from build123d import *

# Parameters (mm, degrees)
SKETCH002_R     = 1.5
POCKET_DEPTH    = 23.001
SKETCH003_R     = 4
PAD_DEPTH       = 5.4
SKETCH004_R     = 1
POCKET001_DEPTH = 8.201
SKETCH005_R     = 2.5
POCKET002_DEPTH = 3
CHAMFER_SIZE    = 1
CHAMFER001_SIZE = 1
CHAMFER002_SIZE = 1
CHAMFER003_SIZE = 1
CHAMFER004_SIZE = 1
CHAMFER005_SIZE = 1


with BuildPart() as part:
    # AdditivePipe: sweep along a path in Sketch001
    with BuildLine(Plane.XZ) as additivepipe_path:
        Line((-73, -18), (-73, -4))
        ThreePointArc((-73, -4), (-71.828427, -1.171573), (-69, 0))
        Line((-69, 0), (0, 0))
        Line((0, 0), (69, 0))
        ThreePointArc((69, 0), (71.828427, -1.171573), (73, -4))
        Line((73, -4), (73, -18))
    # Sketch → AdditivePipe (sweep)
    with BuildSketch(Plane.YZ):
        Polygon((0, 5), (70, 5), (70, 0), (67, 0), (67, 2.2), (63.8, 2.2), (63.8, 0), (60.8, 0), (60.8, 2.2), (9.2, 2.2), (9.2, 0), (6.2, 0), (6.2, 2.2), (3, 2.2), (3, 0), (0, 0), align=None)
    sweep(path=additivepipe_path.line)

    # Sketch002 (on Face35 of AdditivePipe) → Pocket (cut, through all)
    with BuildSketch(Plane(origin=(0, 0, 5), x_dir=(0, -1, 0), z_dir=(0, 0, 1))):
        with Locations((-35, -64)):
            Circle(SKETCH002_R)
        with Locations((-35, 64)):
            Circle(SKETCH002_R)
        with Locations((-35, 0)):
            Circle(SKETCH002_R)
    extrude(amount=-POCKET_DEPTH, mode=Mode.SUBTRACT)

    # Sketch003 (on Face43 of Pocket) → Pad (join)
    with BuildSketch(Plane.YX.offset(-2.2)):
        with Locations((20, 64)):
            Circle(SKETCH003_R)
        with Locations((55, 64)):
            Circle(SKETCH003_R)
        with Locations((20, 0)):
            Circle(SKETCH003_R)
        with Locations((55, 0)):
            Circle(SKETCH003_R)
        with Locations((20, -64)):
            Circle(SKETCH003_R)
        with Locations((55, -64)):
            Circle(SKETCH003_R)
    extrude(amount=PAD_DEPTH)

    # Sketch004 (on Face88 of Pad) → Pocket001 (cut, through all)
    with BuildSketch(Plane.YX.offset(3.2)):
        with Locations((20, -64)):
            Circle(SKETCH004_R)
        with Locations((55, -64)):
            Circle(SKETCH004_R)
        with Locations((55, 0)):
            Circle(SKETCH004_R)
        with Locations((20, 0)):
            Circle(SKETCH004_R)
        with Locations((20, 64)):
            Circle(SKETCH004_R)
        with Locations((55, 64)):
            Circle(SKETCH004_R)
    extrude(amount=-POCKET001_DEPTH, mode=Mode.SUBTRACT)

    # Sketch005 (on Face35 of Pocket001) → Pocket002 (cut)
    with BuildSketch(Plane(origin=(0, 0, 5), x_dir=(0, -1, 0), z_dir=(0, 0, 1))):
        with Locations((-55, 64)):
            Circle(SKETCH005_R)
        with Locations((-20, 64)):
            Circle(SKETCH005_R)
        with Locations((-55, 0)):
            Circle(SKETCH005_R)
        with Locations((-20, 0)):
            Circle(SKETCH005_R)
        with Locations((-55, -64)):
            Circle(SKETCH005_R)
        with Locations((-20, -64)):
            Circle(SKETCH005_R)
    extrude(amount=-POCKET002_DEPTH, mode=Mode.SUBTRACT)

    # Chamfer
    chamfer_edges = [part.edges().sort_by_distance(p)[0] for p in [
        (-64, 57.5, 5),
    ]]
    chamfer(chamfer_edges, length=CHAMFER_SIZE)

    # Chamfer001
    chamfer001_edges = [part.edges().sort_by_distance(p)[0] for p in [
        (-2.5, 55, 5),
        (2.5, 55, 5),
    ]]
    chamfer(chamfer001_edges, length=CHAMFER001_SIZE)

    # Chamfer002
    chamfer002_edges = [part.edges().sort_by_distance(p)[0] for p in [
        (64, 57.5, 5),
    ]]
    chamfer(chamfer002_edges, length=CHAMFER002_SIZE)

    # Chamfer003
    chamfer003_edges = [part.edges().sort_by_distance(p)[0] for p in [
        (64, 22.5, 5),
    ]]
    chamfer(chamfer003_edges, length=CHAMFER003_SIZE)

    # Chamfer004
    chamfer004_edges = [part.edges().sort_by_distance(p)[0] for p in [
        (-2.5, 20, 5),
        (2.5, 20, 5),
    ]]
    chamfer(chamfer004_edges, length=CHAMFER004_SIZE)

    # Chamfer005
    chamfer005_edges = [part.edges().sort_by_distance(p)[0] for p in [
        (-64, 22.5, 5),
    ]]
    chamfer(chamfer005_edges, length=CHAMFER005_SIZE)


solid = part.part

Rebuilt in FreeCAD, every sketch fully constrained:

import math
import FreeCAD as App
import Part
import Sketcher

V = App.Vector


def edges_at(feature, points):
    """Names of the edges that pass closest to the given points."""
    edges = feature.Shape.Edges
    near = lambda p: min(range(len(edges)), key=lambda i: edges[i].distToShape(Part.Vertex(*p))[0])
    return sorted({f"Edge{near(p) + 1}" for p in points})


def add_polygon(sketch, points):
    """Adds a closed chain of lines whose ends are joined by coincident constraints."""
    first, n = sketch.GeometryCount, len(points)
    for a, b in zip(points, points[1:] + points[:1]):
        sketch.addGeometry(Part.LineSegment(App.Vector(*a, 0), App.Vector(*b, 0)), False)
    for i in range(n):
        sketch.addConstraint(Sketcher.Constraint("Coincident", first + i, 2, first + (i + 1) % n, 1))

doc = App.newDocument("Part")
params = doc.addObject("Spreadsheet::Sheet", "Params")
for row, (alias, value) in enumerate([
    ("sketch1_width", "70 mm"),
    ("sketch1_width2", "3 mm"),
    ("sketch1_height", "5 mm"),
    ("sketch1_width3", "3.2 mm"),
    ("sketch1_height2", "2.2 mm"),
    ("sketch2_radius", "4 mm"),
    ("sketch2_width", "138 mm"),
    ("sketch2_height", "14 mm"),
    ("sketch3_diameter", "3 mm"),
    ("sketch4_diameter", "8 mm"),
    ("pad1_length", "5.4 mm"),
    ("sketch5_diameter", "2 mm"),
    ("sketch6_diameter", "5 mm"),
    ("pocket3_length", "3 mm"),
    ("chamfer_size", "1 mm"),
    ("chamfer2_size", "1 mm"),
    ("chamfer3_size", "1 mm"),
    ("chamfer4_size", "1 mm"),
    ("chamfer5_size", "1 mm"),
    ("chamfer6_size", "1 mm"),
], start=1):
    params.set(f"A{row}", alias)
    params.set(f"B{row}", "=" + value)
    params.setAlias(f"B{row}", alias)

body = doc.addObject("PartDesign::Body", "Body")

# Sketch on YZ plane
sketch1 = body.newObject("Sketcher::SketchObject", "Sketch")
sketch1.AttachmentSupport = (doc.getObject("YZ_Plane"), [""])
sketch1.MapMode = "FlatFace"
add_polygon(sketch1, [(70, 5), (0, 5), (0, 0), (3, 0), (3, 2.2), (6.2, 2.2), (6.2, 0), (9.2, 0), (9.2, 2.2), (60.8, 2.2), (60.8, 0), (63.8, 0), (63.8, 2.2), (67, 2.2), (67, 0), (70, 0)])  # lines 0-15
sketch1.addConstraint([
    Sketcher.Constraint("Horizontal", 0),
    Sketcher.Constraint("Vertical", 1),
    Sketcher.Constraint("Horizontal", 2),
    Sketcher.Constraint("Vertical", 3),
    Sketcher.Constraint("Horizontal", 4),
    Sketcher.Constraint("Vertical", 5),
    Sketcher.Constraint("Horizontal", 6),
    Sketcher.Constraint("Vertical", 7),
    Sketcher.Constraint("Horizontal", 8),
    Sketcher.Constraint("Vertical", 9),
    Sketcher.Constraint("Horizontal", 10),
    Sketcher.Constraint("Vertical", 11),
    Sketcher.Constraint("Horizontal", 12),
    Sketcher.Constraint("Vertical", 13),
    Sketcher.Constraint("Horizontal", 14),
    Sketcher.Constraint("Vertical", 15),
    Sketcher.Constraint("Coincident", 1, 2, -1, 1),
    Sketcher.Constraint("PointOnObject", 5, 2, -1),
    Sketcher.Constraint("PointOnObject", 9, 2, -1),
    Sketcher.Constraint("PointOnObject", 13, 2, -1),
    Sketcher.Constraint("Horizontal", 4, 2, 7, 2),
    Sketcher.Constraint("Horizontal", 8, 2, 11, 2),
    Sketcher.Constraint("Equal", 2, 6),
    Sketcher.Constraint("Equal", 6, 10),
    Sketcher.Constraint("Equal", 4, 12),
    Sketcher.Constraint("Equal", 10, 14),
    Sketcher.Constraint("DistanceX", 0, 2, 0, 1, 70.0),
    Sketcher.Constraint("DistanceX", 2, 1, 2, 2, 3.0),
    Sketcher.Constraint("DistanceY", 1, 2, 1, 1, 5.0),
    Sketcher.Constraint("DistanceX", 4, 1, 4, 2, 3.2),
    Sketcher.Constraint("DistanceY", 3, 1, 3, 2, 2.2),
])
sketch1.setExpression("Constraints[42]", "Params.sketch1_width")
sketch1.setExpression("Constraints[43]", "Params.sketch1_width2")
sketch1.setExpression("Constraints[44]", "Params.sketch1_height")
sketch1.setExpression("Constraints[45]", "Params.sketch1_width3")
sketch1.setExpression("Constraints[46]", "Params.sketch1_height2")

# Sketch on XZ plane
sketch2 = body.newObject("Sketcher::SketchObject", "Sketch001")
sketch2.AttachmentSupport = (doc.getObject("XZ_Plane"), [""])
sketch2.MapMode = "FlatFace"
sketch2.addGeometry([
    Part.LineSegment(V(-73, -18, 0), V(-73, -4, 0)),  # 0
    Part.ArcOfCircle(Part.Circle(V(-69, -4, 0), V(0, 0, 1), 4), math.radians(90.000006), math.radians(179.999994)),  # 1
    Part.LineSegment(V(-69, 0, 0), V(69, 0, 0)),  # 2
    Part.ArcOfCircle(Part.Circle(V(69, -4, 0), V(0, 0, 1), 4), math.radians(0.000006), math.radians(89.999994)),  # 3
    Part.LineSegment(V(73, -4, 0), V(73, -18, 0)),  # 4
], False)
sketch2.addConstraint([
    Sketcher.Constraint("Tangent", 0, 2, 1, 2),
    Sketcher.Constraint("Tangent", 1, 1, 2, 1),
    Sketcher.Constraint("Tangent", 2, 2, 3, 2),
    Sketcher.Constraint("Tangent", 3, 1, 4, 1),
    Sketcher.Constraint("Vertical", 0),
    Sketcher.Constraint("Horizontal", 2),
    Sketcher.Constraint("Vertical", 4),
    Sketcher.Constraint("Equal", 1, 3),
    Sketcher.Constraint("Symmetric", 1, 1, 2, 2, -1, 1),
    Sketcher.Constraint("Horizontal", 0, 1, 4, 2),
    Sketcher.Constraint("Radius", 1, 4.0),
    Sketcher.Constraint("DistanceX", 2, 1, 2, 2, 138.0),
    Sketcher.Constraint("DistanceY", 0, 1, 0, 2, 14.0),
])
sketch2.setExpression("Constraints[10]", "Params.sketch2_radius")
sketch2.setExpression("Constraints[11]", "Params.sketch2_width")
sketch2.setExpression("Constraints[12]", "Params.sketch2_height")
doc.recompute()

additivepipe = body.newObject("PartDesign::AdditivePipe", "AdditivePipe")
additivepipe.Profile = sketch1
additivepipe.Spine = (sketch2, ["Edge1", "Edge2", "Edge3", "Edge4", "Edge5"])

# Sketch on XY plane
sketch3 = body.newObject("Sketcher::SketchObject", "Sketch002")
sketch3.AttachmentSupport = (doc.getObject("XY_Plane"), [""])
sketch3.MapMode = "FlatFace"
sketch3.AttachmentOffset = App.Placement(V(0, 0, 5), App.Rotation())
sketch3.addGeometry([
    Part.Circle(V(-64, 35, 0), V(0, 0, 1), 1.5),
    Part.Circle(V(64, 35, 0), V(0, 0, 1), 1.5),
    Part.Circle(V(0, 35, 0), V(0, 0, 1), 1.5),
], False)
sketch3.addConstraint([
    Sketcher.Constraint("Equal", 0, 1),
    Sketcher.Constraint("Equal", 1, 2),
    Sketcher.Constraint("Symmetric", 0, 3, 1, 3, -2),
    Sketcher.Constraint("PointOnObject", 2, 3, -2),
    Sketcher.Constraint("Horizontal", 1, 3, 2, 3),
    Sketcher.Constraint("Diameter", 0, 3.0),
    Sketcher.Constraint("DistanceX", 0, 3, -1, 1, 64.0),
    Sketcher.Constraint("DistanceY", -1, 1, 0, 3, 35.0),
])
sketch3.setExpression("Constraints[5]", "Params.sketch3_diameter")
pocket1 = body.newObject("PartDesign::Pocket", "Pocket")
pocket1.Profile = sketch3
pocket1.Type = "ThroughAll"

# Sketch on XY plane
sketch4 = body.newObject("Sketcher::SketchObject", "Sketch003")
sketch4.AttachmentSupport = (doc.getObject("XY_Plane"), [""])
sketch4.MapMode = "FlatFace"
sketch4.AttachmentOffset = App.Placement(V(0, 0, 2.2), App.Rotation())
sketch4.addGeometry([
    Part.Circle(V(64, 20, 0), V(0, 0, 1), 4),  # 0
    Part.Circle(V(64, 55, 0), V(0, 0, 1), 4),  # 1
    Part.Circle(V(0, 20, 0), V(0, 0, 1), 4),  # 2
    Part.Circle(V(0, 55, 0), V(0, 0, 1), 4),  # 3
    Part.Circle(V(-64, 20, 0), V(0, 0, 1), 4),  # 4
    Part.Circle(V(-64, 55, 0), V(0, 0, 1), 4),  # 5
], False)
sketch4.addConstraint([
    Sketcher.Constraint("Equal", 0, 1),
    Sketcher.Constraint("Equal", 1, 2),
    Sketcher.Constraint("Equal", 2, 3),
    Sketcher.Constraint("Equal", 3, 4),
    Sketcher.Constraint("Equal", 4, 5),
    Sketcher.Constraint("Symmetric", 0, 3, 4, 3, -2),
    Sketcher.Constraint("Symmetric", 1, 3, 5, 3, -2),
    Sketcher.Constraint("PointOnObject", 2, 3, -2),
    Sketcher.Constraint("PointOnObject", 3, 3, -2),
    Sketcher.Constraint("Horizontal", 0, 3, 2, 3),
    Sketcher.Constraint("Horizontal", 1, 3, 3, 3),
    Sketcher.Constraint("Vertical", 0, 3, 1, 3),
    Sketcher.Constraint("Diameter", 0, 8.0),
    Sketcher.Constraint("DistanceX", -1, 1, 0, 3, 64.0),
    Sketcher.Constraint("DistanceY", -1, 1, 0, 3, 20.0),
    Sketcher.Constraint("DistanceY", -1, 1, 1, 3, 55.0),
])
sketch4.setExpression("Constraints[12]", "Params.sketch4_diameter")
pad1 = body.newObject("PartDesign::Pad", "Pad")
pad1.Profile = sketch4
pad1.setExpression("Length", "Params.pad1_length")
pad1.Reversed = True

# Sketch on XY plane
sketch5 = body.newObject("Sketcher::SketchObject", "Sketch004")
sketch5.AttachmentSupport = (doc.getObject("XY_Plane"), [""])
sketch5.MapMode = "FlatFace"
sketch5.AttachmentOffset = App.Placement(V(0, 0, -3.2), App.Rotation())
sketch5.addGeometry([
    Part.Circle(V(-64, 20, 0), V(0, 0, 1), 1),  # 0
    Part.Circle(V(-64, 55, 0), V(0, 0, 1), 1),  # 1
    Part.Circle(V(0, 55, 0), V(0, 0, 1), 1),  # 2
    Part.Circle(V(0, 20, 0), V(0, 0, 1), 1),  # 3
    Part.Circle(V(64, 20, 0), V(0, 0, 1), 1),  # 4
    Part.Circle(V(64, 55, 0), V(0, 0, 1), 1),  # 5
], False)
sketch5.addConstraint([
    Sketcher.Constraint("Equal", 0, 1),
    Sketcher.Constraint("Equal", 1, 2),
    Sketcher.Constraint("Equal", 2, 3),
    Sketcher.Constraint("Equal", 3, 4),
    Sketcher.Constraint("Equal", 4, 5),
    Sketcher.Constraint("Symmetric", 0, 3, 4, 3, -2),
    Sketcher.Constraint("Symmetric", 1, 3, 5, 3, -2),
    Sketcher.Constraint("PointOnObject", 2, 3, -2),
    Sketcher.Constraint("PointOnObject", 3, 3, -2),
    Sketcher.Constraint("Horizontal", 1, 3, 2, 3),
    Sketcher.Constraint("Horizontal", 0, 3, 3, 3),
    Sketcher.Constraint("Vertical", 0, 3, 1, 3),
    Sketcher.Constraint("Diameter", 0, 2.0),
    Sketcher.Constraint("DistanceX", 0, 3, -1, 1, 64.0),
    Sketcher.Constraint("DistanceY", -1, 1, 0, 3, 20.0),
    Sketcher.Constraint("DistanceY", -1, 1, 1, 3, 55.0),
])
sketch5.setExpression("Constraints[12]", "Params.sketch5_diameter")
pocket2 = body.newObject("PartDesign::Pocket", "Pocket001")
pocket2.Profile = sketch5
pocket2.Type = "ThroughAll"
pocket2.Reversed = True

# Sketch on XY plane
sketch6 = body.newObject("Sketcher::SketchObject", "Sketch005")
sketch6.AttachmentSupport = (doc.getObject("XY_Plane"), [""])
sketch6.MapMode = "FlatFace"
sketch6.AttachmentOffset = App.Placement(V(0, 0, 5), App.Rotation())
sketch6.addGeometry([
    Part.Circle(V(64, 55, 0), V(0, 0, 1), 2.5),  # 0
    Part.Circle(V(64, 20, 0), V(0, 0, 1), 2.5),  # 1
    Part.Circle(V(0, 55, 0), V(0, 0, 1), 2.5),  # 2
    Part.Circle(V(0, 20, 0), V(0, 0, 1), 2.5),  # 3
    Part.Circle(V(-64, 55, 0), V(0, 0, 1), 2.5),  # 4
    Part.Circle(V(-64, 20, 0), V(0, 0, 1), 2.5),  # 5
], False)
sketch6.addConstraint([
    Sketcher.Constraint("Equal", 0, 1),
    Sketcher.Constraint("Equal", 1, 2),
    Sketcher.Constraint("Equal", 2, 3),
    Sketcher.Constraint("Equal", 3, 4),
    Sketcher.Constraint("Equal", 4, 5),
    Sketcher.Constraint("Symmetric", 0, 3, 4, 3, -2),
    Sketcher.Constraint("Symmetric", 1, 3, 5, 3, -2),
    Sketcher.Constraint("PointOnObject", 2, 3, -2),
    Sketcher.Constraint("PointOnObject", 3, 3, -2),
    Sketcher.Constraint("Horizontal", 0, 3, 2, 3),
    Sketcher.Constraint("Horizontal", 1, 3, 3, 3),
    Sketcher.Constraint("Vertical", 0, 3, 1, 3),
    Sketcher.Constraint("Diameter", 0, 5.0),
    Sketcher.Constraint("DistanceX", -1, 1, 0, 3, 64.0),
    Sketcher.Constraint("DistanceY", -1, 1, 0, 3, 55.0),
    Sketcher.Constraint("DistanceY", -1, 1, 1, 3, 20.0),
])
sketch6.setExpression("Constraints[12]", "Params.sketch6_diameter")
pocket3 = body.newObject("PartDesign::Pocket", "Pocket002")
pocket3.Profile = sketch6
pocket3.setExpression("Length", "Params.pocket3_length")
doc.recompute()

chamfer = body.newObject("PartDesign::Chamfer", "Chamfer")
chamfer.Base = (pocket3, edges_at(pocket3, [(-64, 57.5, 5)]))
chamfer.setExpression("Size", "Params.chamfer_size")
doc.recompute()

chamfer2 = body.newObject("PartDesign::Chamfer", "Chamfer001")
chamfer2.Base = (chamfer, edges_at(chamfer, [(0, 57.5, 5), (0, 57.5, 5)]))
chamfer2.setExpression("Size", "Params.chamfer2_size")
doc.recompute()

chamfer3 = body.newObject("PartDesign::Chamfer", "Chamfer002")
chamfer3.Base = (chamfer2, edges_at(chamfer2, [(64, 57.5, 5)]))
chamfer3.setExpression("Size", "Params.chamfer3_size")
doc.recompute()

chamfer4 = body.newObject("PartDesign::Chamfer", "Chamfer003")
chamfer4.Base = (chamfer3, edges_at(chamfer3, [(64, 22.5, 5)]))
chamfer4.setExpression("Size", "Params.chamfer4_size")
doc.recompute()

chamfer5 = body.newObject("PartDesign::Chamfer", "Chamfer004")
chamfer5.Base = (chamfer4, edges_at(chamfer4, [(0, 22.5, 5), (0, 22.5, 5)]))
chamfer5.setExpression("Size", "Params.chamfer5_size")
doc.recompute()

chamfer6 = body.newObject("PartDesign::Chamfer", "Chamfer005")
chamfer6.Base = (chamfer5, edges_at(chamfer5, [(-64, 22.5, 5)]))
chamfer6.setExpression("Size", "Params.chamfer6_size")

doc.recompute()
